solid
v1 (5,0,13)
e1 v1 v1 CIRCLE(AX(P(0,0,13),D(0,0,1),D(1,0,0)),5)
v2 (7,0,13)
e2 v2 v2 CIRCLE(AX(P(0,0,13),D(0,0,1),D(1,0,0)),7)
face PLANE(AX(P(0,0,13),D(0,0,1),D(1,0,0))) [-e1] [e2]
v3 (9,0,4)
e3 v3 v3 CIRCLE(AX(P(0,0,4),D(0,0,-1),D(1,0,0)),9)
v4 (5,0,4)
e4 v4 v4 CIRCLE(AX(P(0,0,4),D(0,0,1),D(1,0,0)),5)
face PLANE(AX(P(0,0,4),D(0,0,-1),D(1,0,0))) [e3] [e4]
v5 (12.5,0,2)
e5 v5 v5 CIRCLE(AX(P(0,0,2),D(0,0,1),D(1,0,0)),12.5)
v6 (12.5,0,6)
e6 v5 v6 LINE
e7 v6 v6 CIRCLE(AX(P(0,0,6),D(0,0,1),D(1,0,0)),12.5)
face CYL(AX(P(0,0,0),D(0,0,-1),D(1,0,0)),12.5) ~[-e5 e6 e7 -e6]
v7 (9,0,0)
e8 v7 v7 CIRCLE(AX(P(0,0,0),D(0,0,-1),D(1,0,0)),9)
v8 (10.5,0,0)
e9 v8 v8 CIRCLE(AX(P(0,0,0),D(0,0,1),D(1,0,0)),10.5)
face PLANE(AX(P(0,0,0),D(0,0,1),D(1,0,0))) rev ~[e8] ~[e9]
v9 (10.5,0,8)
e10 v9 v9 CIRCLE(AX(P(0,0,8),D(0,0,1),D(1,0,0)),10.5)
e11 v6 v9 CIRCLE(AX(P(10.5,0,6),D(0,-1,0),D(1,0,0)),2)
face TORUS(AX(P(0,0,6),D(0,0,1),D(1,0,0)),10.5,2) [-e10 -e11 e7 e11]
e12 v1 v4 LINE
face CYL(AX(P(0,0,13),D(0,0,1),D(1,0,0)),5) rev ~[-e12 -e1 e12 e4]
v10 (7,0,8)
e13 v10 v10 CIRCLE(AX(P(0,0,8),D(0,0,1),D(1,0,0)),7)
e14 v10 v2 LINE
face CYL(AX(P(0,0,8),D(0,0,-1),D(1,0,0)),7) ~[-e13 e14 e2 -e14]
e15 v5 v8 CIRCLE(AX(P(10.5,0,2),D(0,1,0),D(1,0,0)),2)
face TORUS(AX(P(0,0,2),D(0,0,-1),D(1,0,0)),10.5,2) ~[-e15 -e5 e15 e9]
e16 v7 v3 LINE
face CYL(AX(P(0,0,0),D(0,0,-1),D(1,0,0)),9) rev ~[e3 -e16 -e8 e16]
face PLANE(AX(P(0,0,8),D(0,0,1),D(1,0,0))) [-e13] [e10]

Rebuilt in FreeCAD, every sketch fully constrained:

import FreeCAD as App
import Part
import Sketcher

V = App.Vector
Q = App.Units.Quantity


def edges_at(feature, points):
    """Names of the edges that pass closest to the given points."""
    edges = feature.Shape.Edges
    near = lambda p: min(range(len(edges)), key=lambda i: edges[i].distToShape(Part.Vertex(*p))[0])
    return sorted({f"Edge{near(p) + 1}" for p in points})

doc = App.newDocument("Part")
body = doc.addObject("PartDesign::Body", "Body")

# Sketch on XY plane
sketch1 = body.newObject("Sketcher::SketchObject", "Sketch")
sketch1.AttachmentSupport = (doc.getObject("XY_Plane"), [""])
sketch1.MapMode = "FlatFace"
sketch1.addGeometry(Part.Circle(V(0, 0, 0), V(0, 0, 1), 12), False)
sketch1.addConstraint(Sketcher.Constraint("Coincident", 0, 3, -1, 1))
sketch1.addConstraint(Sketcher.Constraint("Diameter", 0, Q("25 mm")))
pad1 = body.newObject("PartDesign::Pad", "Pad")
pad1.Profile = sketch1
pad1.Length = 8

# Sketch on XY plane
sketch2 = body.newObject("Sketcher::SketchObject", "Sketch001")
sketch2.AttachmentSupport = (doc.getObject("XY_Plane"), [""])
sketch2.MapMode = "FlatFace"
sketch2.AttachmentOffset = App.Placement(V(0, 0, 8), App.Rotation())
sketch2.addGeometry(Part.Circle(V(0, 0, 0), V(0, 0, 1), 7), False)
sketch2.addConstraint(Sketcher.Constraint("Coincident", 0, 3, -1, 1))
sketch2.addConstraint(Sketcher.Constraint("Diameter", 0, Q("14 mm")))
pad2 = body.newObject("PartDesign::Pad", "Pad001")
pad2.Profile = sketch2
pad2.Length = 5

# Sketch on XY plane
sketch3 = body.newObject("Sketcher::SketchObject", "Sketch002")
sketch3.AttachmentSupport = (doc.getObject("XY_Plane"), [""])
sketch3.MapMode = "FlatFace"
sketch3.AttachmentOffset = App.Placement(V(0, 0, 13), App.Rotation())
sketch3.addGeometry(Part.Circle(V(0, 0, 0), V(0, 0, 1), 5), False)
sketch3.addConstraint(Sketcher.Constraint("Coincident", 0, 3, -1, 1))
sketch3.addConstraint(Sketcher.Constraint("Diameter", 0, Q("10 mm")))
pocket1 = body.newObject("PartDesign::Pocket", "Pocket")
pocket1.Profile = sketch3
pocket1.Length = 25

# Sketch on XY plane
sketch4 = body.newObject("Sketcher::SketchObject", "Sketch003")
sketch4.AttachmentSupport = (doc.getObject("XY_Plane"), [""])
sketch4.MapMode = "FlatFace"
sketch4.addGeometry(Part.Circle(V(0, 0, 0), V(0, 0, 1), 9), False)
sketch4.addConstraint(Sketcher.Constraint("Coincident", 0, 3, -1, 1))
sketch4.addConstraint(Sketcher.Constraint("Diameter", 0, Q("18 mm")))
pocket2 = body.newObject("PartDesign::Pocket", "Pocket001")
pocket2.Profile = sketch4
pocket2.Length = 4
pocket2.Reversed = True
doc.recompute()

fillet = body.newObject("PartDesign::Fillet", "Fillet")
fillet.Base = (pocket2, edges_at(pocket2, [(-12.5, 0, 0), (-12.5, 0, 8)]))
fillet.Radius = 2

doc.recompute()
